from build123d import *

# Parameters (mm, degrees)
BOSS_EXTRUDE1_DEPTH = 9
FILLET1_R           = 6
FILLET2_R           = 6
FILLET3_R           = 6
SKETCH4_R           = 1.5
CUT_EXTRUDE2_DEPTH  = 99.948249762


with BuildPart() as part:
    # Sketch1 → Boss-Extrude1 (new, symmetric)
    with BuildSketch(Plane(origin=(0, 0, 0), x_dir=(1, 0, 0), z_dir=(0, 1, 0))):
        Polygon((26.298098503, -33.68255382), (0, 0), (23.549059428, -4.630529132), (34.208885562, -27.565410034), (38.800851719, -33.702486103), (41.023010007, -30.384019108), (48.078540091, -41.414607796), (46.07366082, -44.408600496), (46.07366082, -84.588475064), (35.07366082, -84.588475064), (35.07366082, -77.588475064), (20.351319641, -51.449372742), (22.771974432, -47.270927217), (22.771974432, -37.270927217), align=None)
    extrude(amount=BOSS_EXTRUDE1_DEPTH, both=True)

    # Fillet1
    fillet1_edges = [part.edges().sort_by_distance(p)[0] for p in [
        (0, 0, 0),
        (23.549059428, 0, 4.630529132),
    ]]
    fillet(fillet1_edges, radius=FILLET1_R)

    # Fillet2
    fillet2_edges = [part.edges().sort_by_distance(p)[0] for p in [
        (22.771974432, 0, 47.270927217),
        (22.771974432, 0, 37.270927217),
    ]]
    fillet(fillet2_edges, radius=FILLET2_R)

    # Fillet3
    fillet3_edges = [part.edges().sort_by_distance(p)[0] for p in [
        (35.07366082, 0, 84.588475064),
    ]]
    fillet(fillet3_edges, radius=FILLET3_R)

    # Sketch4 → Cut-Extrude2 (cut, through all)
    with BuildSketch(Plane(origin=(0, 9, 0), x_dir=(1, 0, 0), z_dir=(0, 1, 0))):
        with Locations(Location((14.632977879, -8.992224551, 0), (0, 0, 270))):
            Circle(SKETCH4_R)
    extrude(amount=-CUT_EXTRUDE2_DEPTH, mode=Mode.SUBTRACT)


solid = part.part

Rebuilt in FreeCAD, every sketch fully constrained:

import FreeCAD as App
import Part
import Sketcher
Q = App.Units.Quantity


def edges_at(feature, points):
    """Names of the edges that pass closest to the given points."""
    edges = feature.Shape.Edges
    near = lambda p: min(range(len(edges)), key=lambda i: edges[i].distToShape(Part.Vertex(*p))[0])
    return sorted({f"Edge{near(p) + 1}" for p in points})

doc = App.newDocument("Part")
body = doc.addObject("PartDesign::Body", "Body")

# Sketch on XZ plane
sketch1 = body.newObject("Sketcher::SketchObject", "Sketch")
sketch1.AttachmentSupport = (doc.getObject("XZ_Plane"), [""])
sketch1.MapMode = "FlatFace"
sketch1.addGeometry(Part.LineSegment(App.Vector(0, 0, 0), App.Vector(26.3, 33.7, 0)), False)
sketch1.addGeometry(Part.LineSegment(App.Vector(26.3, 33.7, 0), App.Vector(22.8, 37.3, 0)), False)
sketch1.addGeometry(Part.LineSegment(App.Vector(22.8, 37.3, 0), App.Vector(22.8, 47.3, 0)), False)
sketch1.addGeometry(Part.LineSegment(App.Vector(22.8, 47.3, 0), App.Vector(20.4, 51.4, 0)), False)
sketch1.addGeometry(Part.LineSegment(App.Vector(20.4, 51.4, 0), App.Vector(35.1, 77.6, 0)), False)
sketch1.addGeometry(Part.LineSegment(App.Vector(35.1, 77.6, 0), App.Vector(35.1, 84.6, 0)), False)
sketch1.addGeometry(Part.LineSegment(App.Vector(35.1, 84.6, 0), App.Vector(46.1, 84.6, 0)), False)
sketch1.addGeometry(Part.LineSegment(App.Vector(46.1, 84.6, 0), App.Vector(46.1, 44.4, 0)), False)
sketch1.addGeometry(Part.LineSegment(App.Vector(46.1, 44.4, 0), App.Vector(48.1, 41.4, 0)), False)
sketch1.addGeometry(Part.LineSegment(App.Vector(48.1, 41.4, 0), App.Vector(41, 30.4, 0)), False)
sketch1.addGeometry(Part.LineSegment(App.Vector(41, 30.4, 0), App.Vector(38.8, 33.7, 0)), False)
sketch1.addGeometry(Part.LineSegment(App.Vector(38.8, 33.7, 0), App.Vector(34.2, 27.6, 0)), False)
sketch1.addGeometry(Part.LineSegment(App.Vector(34.2, 27.6, 0), App.Vector(23.5, 4.6, 0)), False)
sketch1.addGeometry(Part.LineSegment(App.Vector(23.5, 4.6, 0), App.Vector(0, 0, 0)), False)
sketch1.addConstraint(Sketcher.Constraint("Coincident", 0, 2, 1, 1))
sketch1.addConstraint(Sketcher.Constraint("Coincident", 1, 2, 2, 1))
sketch1.addConstraint(Sketcher.Constraint("Coincident", 2, 2, 3, 1))
sketch1.addConstraint(Sketcher.Constraint("Coincident", 3, 2, 4, 1))
sketch1.addConstraint(Sketcher.Constraint("Coincident", 4, 2, 5, 1))
sketch1.addConstraint(Sketcher.Constraint("Coincident", 5, 2, 6, 1))
sketch1.addConstraint(Sketcher.Constraint("Coincident", 6, 2, 7, 1))
sketch1.addConstraint(Sketcher.Constraint("Coincident", 7, 2, 8, 1))
sketch1.addConstraint(Sketcher.Constraint("Coincident", 8, 2, 9, 1))
sketch1.addConstraint(Sketcher.Constraint("Coincident", 9, 2, 10, 1))
sketch1.addConstraint(Sketcher.Constraint("Coincident", 10, 2, 11, 1))
sketch1.addConstraint(Sketcher.Constraint("Coincident", 11, 2, 12, 1))
sketch1.addConstraint(Sketcher.Constraint("Coincident", 12, 2, 13, 1))
sketch1.addConstraint(Sketcher.Constraint("Coincident", 13, 2, 0, 1))
sketch1.addConstraint(Sketcher.Constraint("Vertical", 2))
sketch1.addConstraint(Sketcher.Constraint("Vertical", 5))
sketch1.addConstraint(Sketcher.Constraint("Horizontal", 6))
sketch1.addConstraint(Sketcher.Constraint("Vertical", 7))
sketch1.addConstraint(Sketcher.Constraint("Coincident", 13, 2, -1, 1))
sketch1.addConstraint(Sketcher.Constraint("Parallel", 8, 10))
sketch1.addConstraint(Sketcher.Constraint("DistanceX", 6, 1, 6, 2, Q("11 mm")))
sketch1.addConstraint(Sketcher.Constraint("DistanceY", 2, 1, 2, 2, Q("10 mm")))
sketch1.addConstraint(Sketcher.Constraint("DistanceY", 5, 1, 5, 2, Q("7 mm")))
sketch1.addConstraint(Sketcher.Constraint("Distance", 4, Q("30 mm")))
sketch1.addConstraint(Sketcher.Constraint("Distance", 13, Q("24 mm")))
sketch1.addConstraint(Sketcher.Constraint("Distance", 1, Q("5.030902 mm")))
sketch1.addConstraint(Sketcher.Constraint("DistanceX", -1, 1, 0, 2, Q("26.298099 mm")))
sketch1.addConstraint(Sketcher.Constraint("DistanceY", -1, 1, 7, 2, Q("44.4086 mm")))
sketch1.addConstraint(Sketcher.Constraint("DistanceY", 12, 2, 1, 2, Q("32.640398 mm")))
sketch1.addConstraint(Sketcher.Constraint("Distance", 9, Q("13.094059 mm")))
sketch1.addConstraint(Sketcher.Constraint("Distance", 10, Q("3.993771 mm")))
sketch1.addConstraint(Sketcher.Constraint("Distance", 12, Q("25.291118 mm")))
sketch1.addConstraint(Sketcher.Constraint("DistanceY", 7, 2, 7, 1, Q("40.179875 mm")))
sketch1.addConstraint(Sketcher.Constraint("DistanceX", -1, 1, 3, 2, Q("20.35132 mm")))
sketch1.addConstraint(Sketcher.Constraint("DistanceX", -1, 1, 4, 2, Q("35.073661 mm")))
sketch1.addConstraint(Sketcher.Constraint("DistanceX", -1, 1, 8, 2, Q("48.07854 mm")))
sketch1.addConstraint(Sketcher.Constraint("DistanceX", -1, 1, 9, 2, Q("41.02301 mm")))
sketch1.addConstraint(Sketcher.Constraint("DistanceY", -1, 1, 9, 2, Q("30.384019 mm")))
sketch1.addConstraint(Sketcher.Constraint("DistanceY", -1, 1, 11, 2, Q("27.56541 mm")))
sketch1.addConstraint(Sketcher.Constraint("DistanceX", -1, 1, 12, 2, Q("23.549059 mm")))
sketch1.addConstraint(Sketcher.Constraint("DistanceY", 0, 2, 3, 2, Q("17.766819 mm")))
pad1 = body.newObject("PartDesign::Pad", "Pad")
pad1.Profile = sketch1
pad1.Length = 18
pad1.Midplane = True
doc.recompute()

fillet = body.newObject("PartDesign::Fillet", "Fillet")
fillet.Base = (pad1, edges_at(pad1, [(0, 0, 0), (23.549, 0, 4.631)]))
fillet.Radius = 6
doc.recompute()

fillet2 = body.newObject("PartDesign::Fillet", "Fillet001")
fillet2.Base = (fillet, edges_at(fillet, [(22.772, 0, 47.271), (22.772, 0, 37.271)]))
fillet2.Radius = 6
doc.recompute()

fillet3 = body.newObject("PartDesign::Fillet", "Fillet002")
fillet3.Base = (fillet2, edges_at(fillet2, [(35.074, 0, 84.588)]))
fillet3.Radius = 6

# Sketch on XZ plane
sketch2 = body.newObject("Sketcher::SketchObject", "Sketch001")
sketch2.AttachmentSupport = (doc.getObject("XZ_Plane"), [""])
sketch2.MapMode = "FlatFace"
sketch2.AttachmentOffset = App.Placement(App.Vector(0, 0, -9), App.Rotation())
sketch2.addGeometry(Part.Circle(App.Vector(14.6, 9, 0), App.Vector(0, 0, 1), 1.5), False)
sketch2.addConstraint(Sketcher.Constraint("Diameter", 0, Q("3 mm")))
sketch2.addConstraint(Sketcher.Constraint("DistanceX", -1, 1, 0, 3, Q("14.632978 mm")))
sketch2.addConstraint(Sketcher.Constraint("DistanceY", -1, 1, 0, 3, Q("8.992225 mm")))
pocket1 = body.newObject("PartDesign::Pocket", "Pocket")
pocket1.Profile = sketch2
pocket1.Type = "ThroughAll"
pocket1.Reversed = True

doc.recompute()
